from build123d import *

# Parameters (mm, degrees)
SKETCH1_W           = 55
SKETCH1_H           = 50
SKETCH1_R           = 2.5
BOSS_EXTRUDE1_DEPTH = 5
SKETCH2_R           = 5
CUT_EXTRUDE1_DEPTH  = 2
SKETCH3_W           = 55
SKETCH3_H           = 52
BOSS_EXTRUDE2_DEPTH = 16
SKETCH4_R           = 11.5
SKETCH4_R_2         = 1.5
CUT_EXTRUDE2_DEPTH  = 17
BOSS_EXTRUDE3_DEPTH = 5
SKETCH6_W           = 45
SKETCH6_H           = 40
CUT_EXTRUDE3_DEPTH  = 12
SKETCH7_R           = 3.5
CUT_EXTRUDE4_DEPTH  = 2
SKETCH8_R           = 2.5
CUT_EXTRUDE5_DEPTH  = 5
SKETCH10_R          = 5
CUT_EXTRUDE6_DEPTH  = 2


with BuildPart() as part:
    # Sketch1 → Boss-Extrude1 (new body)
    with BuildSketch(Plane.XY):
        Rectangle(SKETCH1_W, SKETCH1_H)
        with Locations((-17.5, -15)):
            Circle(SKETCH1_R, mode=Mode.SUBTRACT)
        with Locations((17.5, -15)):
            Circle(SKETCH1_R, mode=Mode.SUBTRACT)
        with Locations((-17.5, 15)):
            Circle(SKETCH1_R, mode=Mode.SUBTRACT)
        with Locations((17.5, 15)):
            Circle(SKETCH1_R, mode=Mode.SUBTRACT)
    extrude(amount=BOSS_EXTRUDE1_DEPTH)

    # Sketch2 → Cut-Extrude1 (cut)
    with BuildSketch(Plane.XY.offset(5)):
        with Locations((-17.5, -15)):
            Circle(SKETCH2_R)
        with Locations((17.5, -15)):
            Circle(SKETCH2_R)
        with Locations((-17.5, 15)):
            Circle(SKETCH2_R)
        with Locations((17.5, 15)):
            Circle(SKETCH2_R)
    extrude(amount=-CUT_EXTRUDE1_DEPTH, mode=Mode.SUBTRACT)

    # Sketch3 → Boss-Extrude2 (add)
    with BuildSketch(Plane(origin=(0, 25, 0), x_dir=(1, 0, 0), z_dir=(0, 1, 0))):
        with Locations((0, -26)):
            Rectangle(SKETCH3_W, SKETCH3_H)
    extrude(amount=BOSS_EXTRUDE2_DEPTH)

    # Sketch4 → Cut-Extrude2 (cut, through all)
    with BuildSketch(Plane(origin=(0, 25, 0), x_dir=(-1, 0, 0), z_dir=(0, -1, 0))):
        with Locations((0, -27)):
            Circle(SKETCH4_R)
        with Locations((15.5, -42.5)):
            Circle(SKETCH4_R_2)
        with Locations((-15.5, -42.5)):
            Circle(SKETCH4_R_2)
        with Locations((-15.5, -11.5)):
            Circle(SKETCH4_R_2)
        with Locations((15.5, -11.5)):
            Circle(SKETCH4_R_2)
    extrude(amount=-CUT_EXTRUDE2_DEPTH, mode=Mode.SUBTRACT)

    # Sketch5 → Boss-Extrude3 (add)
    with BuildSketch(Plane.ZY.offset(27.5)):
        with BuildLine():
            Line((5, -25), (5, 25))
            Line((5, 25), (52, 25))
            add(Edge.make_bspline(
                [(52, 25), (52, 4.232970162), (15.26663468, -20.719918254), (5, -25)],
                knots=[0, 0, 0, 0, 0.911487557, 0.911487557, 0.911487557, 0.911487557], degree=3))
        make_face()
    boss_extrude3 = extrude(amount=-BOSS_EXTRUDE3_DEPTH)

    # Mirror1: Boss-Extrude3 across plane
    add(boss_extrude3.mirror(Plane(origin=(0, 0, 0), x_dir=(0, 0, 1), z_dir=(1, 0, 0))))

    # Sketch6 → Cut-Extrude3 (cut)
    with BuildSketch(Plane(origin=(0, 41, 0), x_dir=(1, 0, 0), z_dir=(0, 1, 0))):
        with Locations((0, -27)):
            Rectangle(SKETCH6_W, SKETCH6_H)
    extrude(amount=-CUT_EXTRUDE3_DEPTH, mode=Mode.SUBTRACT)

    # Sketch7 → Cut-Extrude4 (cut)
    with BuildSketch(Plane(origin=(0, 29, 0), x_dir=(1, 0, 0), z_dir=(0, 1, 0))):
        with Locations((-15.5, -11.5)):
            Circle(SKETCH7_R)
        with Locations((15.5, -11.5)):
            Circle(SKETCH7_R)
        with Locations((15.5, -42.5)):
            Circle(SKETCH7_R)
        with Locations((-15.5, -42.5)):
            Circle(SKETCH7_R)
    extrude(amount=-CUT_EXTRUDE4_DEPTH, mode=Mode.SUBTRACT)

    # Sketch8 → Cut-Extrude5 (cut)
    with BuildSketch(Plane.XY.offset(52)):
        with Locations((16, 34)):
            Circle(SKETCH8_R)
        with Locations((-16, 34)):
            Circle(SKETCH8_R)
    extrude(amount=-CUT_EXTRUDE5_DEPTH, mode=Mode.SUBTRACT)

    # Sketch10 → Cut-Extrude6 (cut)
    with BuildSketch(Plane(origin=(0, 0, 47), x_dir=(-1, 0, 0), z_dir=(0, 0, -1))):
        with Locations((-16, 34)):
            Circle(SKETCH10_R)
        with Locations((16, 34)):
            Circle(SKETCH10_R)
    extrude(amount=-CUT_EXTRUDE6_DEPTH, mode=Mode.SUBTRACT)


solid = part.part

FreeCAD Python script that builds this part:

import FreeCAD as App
import Part
import Sketcher
from FreeCAD import Vector

doc = App.newDocument("Part")
body = doc.addObject("PartDesign::Body", "Body")

sketch1 = body.newObject("Sketcher::SketchObject", "Sketch")
sketch1.AttachmentSupport = (doc.getObject("XY_Plane"), [""])
sketch1.MapMode = "FlatFace"
sketch1.addGeometry(Part.LineSegment(Vector(-27.5, 25, 0), Vector(-27.5, -25, 0)), False)
sketch1.addGeometry(Part.LineSegment(Vector(-27.5, -25, 0), Vector(27.5, -25, 0)), False)
sketch1.addGeometry(Part.LineSegment(Vector(27.5, -25, 0), Vector(27.5, 25, 0)), False)
sketch1.addGeometry(Part.LineSegment(Vector(27.5, 25, 0), Vector(-27.5, 25, 0)), False)
sketch1.addGeometry(Part.Circle(Vector(-17.5, -15, 0), Vector(0, 0, 1), 2.5), False)
sketch1.addGeometry(Part.Circle(Vector(17.5, -15, 0), Vector(0, 0, 1), 2.5), False)
sketch1.addGeometry(Part.Circle(Vector(-17.5, 15, 0), Vector(0, 0, 1), 2.5), False)
sketch1.addGeometry(Part.Circle(Vector(17.5, 15, 0), Vector(0, 0, 1), 2.5), False)
sketch1.addConstraint(Sketcher.Constraint("Coincident", 0, 2, 1, 1))
sketch1.addConstraint(Sketcher.Constraint("Coincident", 1, 2, 2, 1))
sketch1.addConstraint(Sketcher.Constraint("Coincident", 2, 2, 3, 1))
sketch1.addConstraint(Sketcher.Constraint("Coincident", 3, 2, 0, 1))
sketch1.addConstraint(Sketcher.Constraint("Vertical", 0))
sketch1.addConstraint(Sketcher.Constraint("Horizontal", 1))
sketch1.addConstraint(Sketcher.Constraint("Vertical", 2))
sketch1.addConstraint(Sketcher.Constraint("Horizontal", 3))
sketch1.addConstraint(Sketcher.Constraint("Equal", 4, 5))
sketch1.addConstraint(Sketcher.Constraint("Equal", 5, 6))
sketch1.addConstraint(Sketcher.Constraint("Equal", 6, 7))
sketch1.addConstraint(Sketcher.Constraint("Symmetric", 5, 3, 6, 3, -1, 1))
sketch1.addConstraint(Sketcher.Constraint("Symmetric", 4, 3, 7, 3, -1, 1))
sketch1.addConstraint(Sketcher.Constraint("Symmetric", 0, 2, 2, 2, -1, 1))
sketch1.addConstraint(Sketcher.Constraint("Symmetric", 4, 3, 5, 3, -2))
sketch1.addConstraint(Sketcher.Constraint("Diameter", 4, 5.0))
sketch1.addConstraint(Sketcher.Constraint("DistanceX", 1, 1, 1, 2, 55.0))
sketch1.addConstraint(Sketcher.Constraint("DistanceY", 0, 2, 0, 1, 50.0))
sketch1.addConstraint(Sketcher.Constraint("DistanceY", 4, 3, -1, 1, 15.0))
sketch1.addConstraint(Sketcher.Constraint("DistanceX", 4, 3, 5, 3, 35.0))
pad1 = body.newObject("PartDesign::Pad", "Pad")
pad1.Profile = sketch1
pad1.Length = 5

sketch2 = body.newObject("Sketcher::SketchObject", "Sketch001")
sketch2.AttachmentSupport = (doc.getObject("XY_Plane"), [""])
sketch2.MapMode = "FlatFace"
sketch2.AttachmentOffset = App.Placement(Vector(0, 0, 5), App.Rotation())
sketch2.addGeometry(Part.Circle(Vector(-18, -15, 0), Vector(0, 0, 1), 5), False)
sketch2.addGeometry(Part.Circle(Vector(18, -15, 0), Vector(0, 0, 1), 5), False)
sketch2.addGeometry(Part.Circle(Vector(-18, 15, 0), Vector(0, 0, 1), 5), False)
sketch2.addGeometry(Part.Circle(Vector(18, 15, 0), Vector(0, 0, 1), 5), False)
sketch2.addConstraint(Sketcher.Constraint("Equal", 0, 1))
sketch2.addConstraint(Sketcher.Constraint("Equal", 1, 2))
sketch2.addConstraint(Sketcher.Constraint("Equal", 2, 3))
sketch2.addConstraint(Sketcher.Constraint("Symmetric", 1, 3, 2, 3, -1, 1))
sketch2.addConstraint(Sketcher.Constraint("Symmetric", 0, 3, 3, 3, -1, 1))
sketch2.addConstraint(Sketcher.Constraint("Symmetric", 0, 3, 1, 3, -2))
sketch2.addConstraint(Sketcher.Constraint("Diameter", 0, 10.0))
sketch2.addConstraint(Sketcher.Constraint("DistanceY", 0, 3, -1, 1, 15.0))
sketch2.addConstraint(Sketcher.Constraint("DistanceX", 0, 3, 1, 3, 35.0))
pocket1 = body.newObject("PartDesign::Pocket", "Pocket")
pocket1.Profile = sketch2
pocket1.Length = 2

sketch3 = body.newObject("Sketcher::SketchObject", "Sketch002")
sketch3.AttachmentSupport = (doc.getObject("XZ_Plane"), [""])
sketch3.MapMode = "FlatFace"
sketch3.AttachmentOffset = App.Placement(Vector(0, 0, -25), App.Rotation())
sketch3.addGeometry(Part.LineSegment(Vector(-28, 0, 0), Vector(-28, 52, 0)), False)
sketch3.addGeometry(Part.LineSegment(Vector(-28, 52, 0), Vector(28, 52, 0)), False)
sketch3.addGeometry(Part.LineSegment(Vector(28, 52, 0), Vector(28, 0, 0)), False)
sketch3.addGeometry(Part.LineSegment(Vector(28, 0, 0), Vector(-28, 0, 0)), False)
sketch3.addConstraint(Sketcher.Constraint("Coincident", 0, 2, 1, 1))
sketch3.addConstraint(Sketcher.Constraint("Coincident", 1, 2, 2, 1))
sketch3.addConstraint(Sketcher.Constraint("Coincident", 2, 2, 3, 1))
sketch3.addConstraint(Sketcher.Constraint("Coincident", 3, 2, 0, 1))
sketch3.addConstraint(Sketcher.Constraint("Vertical", 0))
sketch3.addConstraint(Sketcher.Constraint("Horizontal", 1))
sketch3.addConstraint(Sketcher.Constraint("Vertical", 2))
sketch3.addConstraint(Sketcher.Constraint("Horizontal", 3))
sketch3.addConstraint(Sketcher.Constraint("Symmetric", 2, 2, 3, 2, -1, 1))
sketch3.addConstraint(Sketcher.Constraint("DistanceX", 1, 1, 1, 2, 55.0))
sketch3.addConstraint(Sketcher.Constraint("DistanceY", 0, 1, 0, 2, 52.0))
pad2 = body.newObject("PartDesign::Pad", "Pad001")
pad2.Profile = sketch3
pad2.Length = 16
pad2.Reversed = True

sketch4 = body.newObject("Sketcher::SketchObject", "Sketch003")
sketch4.AttachmentSupport = (doc.getObject("XZ_Plane"), [""])
sketch4.MapMode = "FlatFace"
sketch4.AttachmentOffset = App.Placement(Vector(0, 0, -25), App.Rotation())
sketch4.addGeometry(Part.Circle(Vector(0, 27, 0), Vector(0, 0, 1), 11.5), False)
sketch4.addGeometry(Part.Circle(Vector(-15.5, 42.5, 0), Vector(0, 0, 1), 1.5), False)
sketch4.addGeometry(Part.Circle(Vector(15.5, 42.5, 0), Vector(0, 0, 1), 1.5), False)
sketch4.addGeometry(Part.Circle(Vector(15.5, 11.5, 0), Vector(0, 0, 1), 1.5), False)
sketch4.addGeometry(Part.Circle(Vector(-15.5, 11.5, 0), Vector(0, 0, 1), 1.5), False)
sketch4.addConstraint(Sketcher.Constraint("Equal", 1, 2))
sketch4.addConstraint(Sketcher.Constraint("Equal", 2, 3))
sketch4.addConstraint(Sketcher.Constraint("Equal", 3, 4))
sketch4.addConstraint(Sketcher.Constraint("Symmetric", 1, 3, 2, 3, -2))
sketch4.addConstraint(Sketcher.Constraint("Symmetric", 3, 3, 4, 3, -2))
sketch4.addConstraint(Sketcher.Constraint("PointOnObject", 0, 3, -2))
sketch4.addConstraint(Sketcher.Constraint("Vertical", 2, 3, 3, 3))
sketch4.addConstraint(Sketcher.Constraint("Diameter", 0, 23.0))
sketch4.addConstraint(Sketcher.Constraint("Diameter", 1, 3.0))
sketch4.addConstraint(Sketcher.Constraint("DistanceY", -1, 1, 0, 3, 27.0))
sketch4.addConstraint(Sketcher.Constraint("DistanceX", 1, 3, 2, 3, 31.0))
sketch4.addConstraint(Sketcher.Constraint("DistanceY", 3, 3, 2, 3, 31.0))
sketch4.addConstraint(Sketcher.Constraint("DistanceY", -1, 1, 1, 3, 42.5))
pocket2 = body.newObject("PartDesign::Pocket", "Pocket001")
pocket2.Profile = sketch4
pocket2.Type = "ThroughAll"

sketch5 = body.newObject("Sketcher::SketchObject", "Sketch004")
sketch5.AttachmentSupport = (doc.getObject("YZ_Plane"), [""])
sketch5.MapMode = "FlatFace"
sketch5.AttachmentOffset = App.Placement(Vector(0, 0, -27.5), App.Rotation())
sketch5.addGeometry(Part.LineSegment(Vector(25, 5, 0), Vector(-25, 5, 0)), False)
sketch5.addGeometry(Part.BSplineCurve([Vector(25, 52, 0), Vector(4.23297, 52, 0), Vector(-20.719918, 15.266635, 0), Vector(-25, 5, 0)], [4, 4], [0, 0.911487557], False, 3, [1, 1, 1, 1], False), False)
sketch5.addGeometry(Part.LineSegment(Vector(25, 52, 0), Vector(25, 5, 0)), False)
sketch5.addConstraint(Sketcher.Constraint("Block", 1))
sketch5.addConstraint(Sketcher.Constraint("Coincident", 0, 2, 1, 2))
sketch5.addConstraint(Sketcher.Constraint("Coincident", 1, 1, 2, 1))
sketch5.addConstraint(Sketcher.Constraint("Coincident", 2, 2, 0, 1))
sketch5.addConstraint(Sketcher.Constraint("Horizontal", 0))
sketch5.addConstraint(Sketcher.Constraint("Vertical", 2))
pad3 = body.newObject("PartDesign::Pad", "Pad002")
pad3.Profile = sketch5
pad3.Length = 5
doc.recompute()

mirrored = body.newObject("PartDesign::Mirrored", "Mirrored")
mirrored.Originals = [pad3]
mirrored.MirrorPlane = (doc.getObject("YZ_Plane"), [""])
body.Tip = mirrored

sketch6 = body.newObject("Sketcher::SketchObject", "Sketch005")
sketch6.AttachmentSupport = (doc.getObject("XZ_Plane"), [""])
sketch6.MapMode = "FlatFace"
sketch6.AttachmentOffset = App.Placement(Vector(0, 0, -41), App.Rotation())
sketch6.addGeometry(Part.LineSegment(Vector(-22, 7, 0), Vector(-22, 47, 0)), False)
sketch6.addGeometry(Part.LineSegment(Vector(-22, 47, 0), Vector(22, 47, 0)), False)
sketch6.addGeometry(Part.LineSegment(Vector(22, 47, 0), Vector(22, 7, 0)), False)
sketch6.addGeometry(Part.LineSegment(Vector(22, 7, 0), Vector(-22, 7, 0)), False)
sketch6.addConstraint(Sketcher.Constraint("Coincident", 0, 2, 1, 1))
sketch6.addConstraint(Sketcher.Constraint("Coincident", 1, 2, 2, 1))
sketch6.addConstraint(Sketcher.Constraint("Coincident", 2, 2, 3, 1))
sketch6.addConstraint(Sketcher.Constraint("Coincident", 3, 2, 0, 1))
sketch6.addConstraint(Sketcher.Constraint("Vertical", 0))
sketch6.addConstraint(Sketcher.Constraint("Horizontal", 1))
sketch6.addConstraint(Sketcher.Constraint("Vertical", 2))
sketch6.addConstraint(Sketcher.Constraint("Horizontal", 3))
sketch6.addConstraint(Sketcher.Constraint("DistanceX", 1, 1, 1, 2, 45.0))
sketch6.addConstraint(Sketcher.Constraint("DistanceY", 0, 1, 0, 2, 40.0))
sketch6.addConstraint(Sketcher.Constraint("DistanceY", -1, 1, 0, 2, 47.0))
sketch6.addConstraint(Sketcher.Constraint("DistanceX", 0, 2, -1, 1, 22.5))
pocket3 = body.newObject("PartDesign::Pocket", "Pocket002")
pocket3.Profile = sketch6
pocket3.Length = 12
pocket3.Reversed = True

sketch7 = body.newObject("Sketcher::SketchObject", "Sketch006")
sketch7.AttachmentSupport = (doc.getObject("XZ_Plane"), [""])
sketch7.MapMode = "FlatFace"
sketch7.AttachmentOffset = App.Placement(Vector(0, 0, -29), App.Rotation())
sketch7.addGeometry(Part.Circle(Vector(-15.5, 11.5, 0), Vector(0, 0, 1), 3.5), False)
sketch7.addGeometry(Part.Circle(Vector(15.5, 11.5, 0), Vector(0, 0, 1), 3.5), False)
sketch7.addGeometry(Part.Circle(Vector(15.5, 42.5, 0), Vector(0, 0, 1), 3.5), False)
sketch7.addGeometry(Part.Circle(Vector(-15.5, 42.5, 0), Vector(0, 0, 1), 3.5), False)
sketch7.addConstraint(Sketcher.Constraint("Equal", 0, 1))
sketch7.addConstraint(Sketcher.Constraint("Equal", 1, 2))
sketch7.addConstraint(Sketcher.Constraint("Equal", 2, 3))
sketch7.addConstraint(Sketcher.Constraint("Symmetric", 0, 3, 1, 3, -2))
sketch7.addConstraint(Sketcher.Constraint("Symmetric", 2, 3, 3, 3, -2))
sketch7.addConstraint(Sketcher.Constraint("Vertical", 1, 3, 2, 3))
sketch7.addConstraint(Sketcher.Constraint("Diameter", 0, 7.0))
sketch7.addConstraint(Sketcher.Constraint("DistanceX", 0, 3, 1, 3, 31.0))
sketch7.addConstraint(Sketcher.Constraint("DistanceY", 1, 3, 2, 3, 31.0))
sketch7.addConstraint(Sketcher.Constraint("DistanceY", -1, 1, 0, 3, 11.5))
pocket4 = body.newObject("PartDesign::Pocket", "Pocket003")
pocket4.Profile = sketch7
pocket4.Length = 2
pocket4.Reversed = True

sketch8 = body.newObject("Sketcher::SketchObject", "Sketch007")
sketch8.AttachmentSupport = (doc.getObject("XY_Plane"), [""])
sketch8.MapMode = "FlatFace"
sketch8.AttachmentOffset = App.Placement(Vector(0, 0, 52), App.Rotation())
sketch8.addGeometry(Part.Circle(Vector(16, 34, 0), Vector(0, 0, 1), 2.5), False)
sketch8.addGeometry(Part.Circle(Vector(-16, 34, 0), Vector(0, 0, 1), 2.5), False)
sketch8.addConstraint(Sketcher.Constraint("Equal", 0, 1))
sketch8.addConstraint(Sketcher.Constraint("Symmetric", 0, 3, 1, 3, -2))
sketch8.addConstraint(Sketcher.Constraint("Diameter", 0, 5.0))
sketch8.addConstraint(Sketcher.Constraint("DistanceX", -1, 1, 0, 3, 16.0))
sketch8.addConstraint(Sketcher.Constraint("DistanceY", -1, 1, 0, 3, 34.0))
pocket5 = body.newObject("PartDesign::Pocket", "Pocket004")
pocket5.Profile = sketch8
pocket5.Length = 5

sketch9 = body.newObject("Sketcher::SketchObject", "Sketch008")
sketch9.AttachmentSupport = (doc.getObject("XY_Plane"), [""])
sketch9.MapMode = "FlatFace"
sketch9.AttachmentOffset = App.Placement(Vector(0, 0, 47), App.Rotation())
sketch9.addGeometry(Part.Circle(Vector(16, 34, 0), Vector(0, 0, 1), 5), False)
sketch9.addGeometry(Part.Circle(Vector(-16, 34, 0), Vector(0, 0, 1), 5), False)
sketch9.addConstraint(Sketcher.Constraint("Equal", 0, 1))
sketch9.addConstraint(Sketcher.Constraint("Symmetric", 0, 3, 1, 3, -2))
sketch9.addConstraint(Sketcher.Constraint("Diameter", 0, 10.0))
sketch9.addConstraint(Sketcher.Constraint("DistanceX", -1, 1, 0, 3, 16.0))
sketch9.addConstraint(Sketcher.Constraint("DistanceY", -1, 1, 0, 3, 34.0))
pocket6 = body.newObject("PartDesign::Pocket", "Pocket005")
pocket6.Profile = sketch9
pocket6.Length = 2
pocket6.Reversed = True

doc.recompute()
